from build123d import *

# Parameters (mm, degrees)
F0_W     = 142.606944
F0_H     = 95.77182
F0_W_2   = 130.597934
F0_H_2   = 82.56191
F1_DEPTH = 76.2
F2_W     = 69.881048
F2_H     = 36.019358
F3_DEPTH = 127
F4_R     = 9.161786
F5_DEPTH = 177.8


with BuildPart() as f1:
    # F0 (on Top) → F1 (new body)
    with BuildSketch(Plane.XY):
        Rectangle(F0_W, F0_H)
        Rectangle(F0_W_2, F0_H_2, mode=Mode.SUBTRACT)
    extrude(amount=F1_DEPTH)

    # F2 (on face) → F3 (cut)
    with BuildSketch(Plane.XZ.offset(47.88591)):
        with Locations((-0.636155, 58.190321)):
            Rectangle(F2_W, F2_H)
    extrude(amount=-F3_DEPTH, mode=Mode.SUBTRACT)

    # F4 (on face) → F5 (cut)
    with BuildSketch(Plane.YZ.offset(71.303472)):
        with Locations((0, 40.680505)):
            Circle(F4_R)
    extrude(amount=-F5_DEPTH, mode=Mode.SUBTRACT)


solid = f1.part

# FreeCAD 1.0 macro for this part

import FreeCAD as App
import Part
import Sketcher

V = App.Vector
Q = App.Units.Quantity


def add_polygon(sketch, points):
    """Adds a closed chain of lines whose ends are joined by coincident constraints."""
    first, n = sketch.GeometryCount, len(points)
    for a, b in zip(points, points[1:] + points[:1]):
        sketch.addGeometry(Part.LineSegment(App.Vector(*a, 0), App.Vector(*b, 0)), False)
    for i in range(n):
        sketch.addConstraint(Sketcher.Constraint("Coincident", first + i, 2, first + (i + 1) % n, 1))

doc = App.newDocument("Part")
body = doc.addObject("PartDesign::Body", "Body")

sketch1 = doc.addObject("Sketcher::SketchObject", "Sketch")
body.addObject(sketch1)
sketch1.AttachmentSupport = (doc.XY_Plane, [""])
sketch1.MapMode = "FlatFace"
add_polygon(sketch1, [(-71.303472, 47.88591), (-71.303472, -47.88591), (71.303472, -47.88591), (71.303472, 47.88591)])
add_polygon(sketch1, [(65.298967, -41.280955), (-65.298967, -41.280955), (-65.298967, 41.280955), (65.298967, 41.280955)])
sketch1.addConstraint([
    Sketcher.Constraint("Vertical", 0),
    Sketcher.Constraint("Horizontal", 1),
    Sketcher.Constraint("Vertical", 2),
    Sketcher.Constraint("Horizontal", 3),
    Sketcher.Constraint("Horizontal", 4),
    Sketcher.Constraint("Vertical", 5),
    Sketcher.Constraint("Horizontal", 6),
    Sketcher.Constraint("Vertical", 7),
    Sketcher.Constraint("Symmetric", 0, 2, 2, 2, -1, 1),
    Sketcher.Constraint("Symmetric", 4, 2, 6, 2, -1, 1),
    Sketcher.Constraint("DistanceY", 0, 2, 0, 1, 95.77182),
    Sketcher.Constraint("DistanceY", 5, 1, 5, 2, 82.56191),
    Sketcher.Constraint("DistanceX", 1, 1, 1, 2, 142.606944),
    Sketcher.Constraint("DistanceX", 4, 2, 4, 1, 130.597934),
])
pad1 = doc.addObject("PartDesign::Pad", "Pad")
body.addObject(pad1)
pad1.Profile = sketch1
pad1.Length = Q("3 in")

sketch2 = doc.addObject("Sketcher::SketchObject", "Sketch001")
body.addObject(sketch2)
sketch2.AttachmentSupport = (doc.XZ_Plane, [""])
sketch2.MapMode = "FlatFace"
sketch2.AttachmentOffset = App.Placement(V(0, 0, 47.88591), App.Rotation())
add_polygon(sketch2, [(-35.576679, 76.2), (-35.576679, 40.180642), (34.304369, 40.180642), (34.304369, 76.2)])
sketch2.addConstraint([
    Sketcher.Constraint("Vertical", 0),
    Sketcher.Constraint("Horizontal", 1),
    Sketcher.Constraint("Vertical", 2),
    Sketcher.Constraint("Horizontal", 3),
    Sketcher.Constraint("DistanceY", -1, 1, 2, 2, Q("3 in")),
    Sketcher.Constraint("DistanceY", 0, 2, 0, 1, 36.019358),
    Sketcher.Constraint("DistanceX", 1, 1, 1, 2, 69.881048),
    Sketcher.Constraint("DistanceX", 0, 2, -1, 1, 35.576679),
])
pocket1 = doc.addObject("PartDesign::Pocket", "Pocket")
body.addObject(pocket1)
pocket1.Profile = sketch2
pocket1.Length = Q("5 in")

sketch3 = doc.addObject("Sketcher::SketchObject", "Sketch002")
body.addObject(sketch3)
sketch3.AttachmentSupport = (doc.YZ_Plane, [""])
sketch3.MapMode = "FlatFace"
sketch3.AttachmentOffset = App.Placement(V(0, 0, 71.303472), App.Rotation())
sketch3.addGeometry(Part.Circle(V(0, 40.680505, 0), V(0, 0, 1), 9.161786), False)
sketch3.addConstraint([
    Sketcher.Constraint("PointOnObject", 0, 3, -2),
    Sketcher.Constraint("Diameter", 0, 18.323572),
    Sketcher.Constraint("DistanceY", -1, 1, 0, 3, 40.680505),
])
pocket2 = doc.addObject("PartDesign::Pocket", "Pocket001")
body.addObject(pocket2)
pocket2.Profile = sketch3
pocket2.Length = Q("7 in")

doc.recompute()
